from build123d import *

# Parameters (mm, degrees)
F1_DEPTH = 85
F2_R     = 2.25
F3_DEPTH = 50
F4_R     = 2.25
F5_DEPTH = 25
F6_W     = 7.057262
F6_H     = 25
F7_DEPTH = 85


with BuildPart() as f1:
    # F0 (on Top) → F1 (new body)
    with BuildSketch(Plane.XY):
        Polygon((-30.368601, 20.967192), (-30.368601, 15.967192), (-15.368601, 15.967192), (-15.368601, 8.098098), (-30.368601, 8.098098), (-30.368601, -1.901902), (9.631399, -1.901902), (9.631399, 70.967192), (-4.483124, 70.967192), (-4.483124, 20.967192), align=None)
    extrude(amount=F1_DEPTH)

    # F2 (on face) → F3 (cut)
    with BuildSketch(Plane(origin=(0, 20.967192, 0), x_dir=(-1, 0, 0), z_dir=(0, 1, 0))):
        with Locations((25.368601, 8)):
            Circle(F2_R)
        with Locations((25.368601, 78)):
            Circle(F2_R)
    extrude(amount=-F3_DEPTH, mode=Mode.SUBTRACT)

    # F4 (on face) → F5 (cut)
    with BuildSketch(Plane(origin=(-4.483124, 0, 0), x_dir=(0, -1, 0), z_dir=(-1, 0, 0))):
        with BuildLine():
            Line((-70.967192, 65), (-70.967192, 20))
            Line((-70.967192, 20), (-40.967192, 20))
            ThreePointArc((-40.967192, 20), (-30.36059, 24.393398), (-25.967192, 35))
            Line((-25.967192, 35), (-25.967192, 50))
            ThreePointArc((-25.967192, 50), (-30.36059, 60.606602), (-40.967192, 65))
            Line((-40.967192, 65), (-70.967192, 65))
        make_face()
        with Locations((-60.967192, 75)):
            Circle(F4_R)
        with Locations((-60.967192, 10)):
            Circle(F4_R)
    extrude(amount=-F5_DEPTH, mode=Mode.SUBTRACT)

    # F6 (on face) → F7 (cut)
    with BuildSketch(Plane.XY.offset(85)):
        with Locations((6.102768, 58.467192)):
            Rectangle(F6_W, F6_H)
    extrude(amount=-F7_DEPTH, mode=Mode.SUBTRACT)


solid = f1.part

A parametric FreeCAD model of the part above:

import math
import FreeCAD as App
import Part
import Sketcher
from FreeCAD import Vector
Q = App.Units.Quantity

doc = App.newDocument("Part")
body = doc.addObject("PartDesign::Body", "Body")

sketch1 = body.newObject("Sketcher::SketchObject", "Sketch")
sketch1.AttachmentSupport = (doc.getObject("XY_Plane"), [""])
sketch1.MapMode = "FlatFace"
sketch1.addGeometry([
    Part.LineSegment(Vector(-30.368601, 20.967192, 0), Vector(-30.368601, 15.967192, 0)),
    Part.LineSegment(Vector(-30.368601, 15.967192, 0), Vector(-15.368601, 15.967192, 0)),
    Part.LineSegment(Vector(-15.368601, 15.967192, 0), Vector(-15.368601, 8.098098, 0)),
    Part.LineSegment(Vector(-15.368601, 8.098098, 0), Vector(-30.368601, 8.098098, 0)),
    Part.LineSegment(Vector(-30.368601, 8.098098, 0), Vector(-30.368601, -1.901902, 0)),
    Part.LineSegment(Vector(-30.368601, -1.901902, 0), Vector(9.631399, -1.901902, 0)),
    Part.LineSegment(Vector(9.631399, -1.901902, 0), Vector(9.631399, 70.967192, 0)),
    Part.LineSegment(Vector(9.631399, 70.967192, 0), Vector(-4.483124, 70.967192, 0)),
    Part.LineSegment(Vector(-4.483124, 70.967192, 0), Vector(-4.483124, 20.967192, 0)),
    Part.LineSegment(Vector(-4.483124, 20.967192, 0), Vector(-30.368601, 20.967192, 0)),
], False)
sketch1.addConstraint([
    Sketcher.Constraint("Coincident", 0, 2, 1, 1),
    Sketcher.Constraint("Coincident", 1, 2, 2, 1),
    Sketcher.Constraint("Coincident", 2, 2, 3, 1),
    Sketcher.Constraint("Coincident", 3, 2, 4, 1),
    Sketcher.Constraint("Coincident", 4, 2, 5, 1),
    Sketcher.Constraint("Coincident", 5, 2, 6, 1),
    Sketcher.Constraint("Coincident", 6, 2, 7, 1),
    Sketcher.Constraint("Coincident", 7, 2, 8, 1),
    Sketcher.Constraint("Coincident", 8, 2, 9, 1),
    Sketcher.Constraint("Coincident", 9, 2, 0, 1),
    Sketcher.Constraint("Vertical", 0),
    Sketcher.Constraint("Horizontal", 1),
    Sketcher.Constraint("Vertical", 2),
    Sketcher.Constraint("Horizontal", 3),
    Sketcher.Constraint("Vertical", 4),
    Sketcher.Constraint("Horizontal", 5),
    Sketcher.Constraint("Vertical", 6),
    Sketcher.Constraint("Horizontal", 7),
    Sketcher.Constraint("Vertical", 8),
    Sketcher.Constraint("Horizontal", 9),
    Sketcher.Constraint("Vertical", 0, 2, 3, 2),
    Sketcher.Constraint("DistanceX", 1, 1, 1, 2, Q("15 mm")),
    Sketcher.Constraint("DistanceX", 5, 1, 5, 2, Q("40 mm")),
    Sketcher.Constraint("DistanceY", 0, 2, 0, 1, Q("5 mm")),
    Sketcher.Constraint("DistanceY", 4, 2, 4, 1, Q("10 mm")),
    Sketcher.Constraint("DistanceY", 8, 2, 8, 1, Q("50 mm")),
    Sketcher.Constraint("DistanceX", 0, 2, -1, 1, Q("30.368601 mm")),
    Sketcher.Constraint("DistanceX", 7, 2, 7, 1, Q("14.114523 mm")),
    Sketcher.Constraint("DistanceY", 2, 2, 2, 1, Q("7.869094 mm")),
    Sketcher.Constraint("DistanceY", -1, 1, 6, 2, Q("70.967192 mm")),
])
pad1 = body.newObject("PartDesign::Pad", "Pad")
pad1.Profile = sketch1
pad1.Length = 85

sketch2 = body.newObject("Sketcher::SketchObject", "Sketch001")
sketch2.AttachmentSupport = (doc.getObject("XZ_Plane"), [""])
sketch2.MapMode = "FlatFace"
sketch2.AttachmentOffset = App.Placement(Vector(0, 0, -20.967192), App.Rotation())
sketch2.addGeometry([
    Part.Circle(Vector(-25.368601, 8, 0), Vector(0, 0, 1), 2.25),
    Part.Circle(Vector(-25.368601, 78, 0), Vector(0, 0, 1), 2.25),
], False)
sketch2.addConstraint([
    Sketcher.Constraint("Equal", 0, 1),
    Sketcher.Constraint("Vertical", 0, 3, 1, 3),
    Sketcher.Constraint("Diameter", 0, Q("4.5 mm")),
    Sketcher.Constraint("DistanceY", -1, 1, 0, 3, Q("8 mm")),
    Sketcher.Constraint("DistanceY", -1, 1, 1, 3, Q("78 mm")),
    Sketcher.Constraint("DistanceX", 0, 3, -1, 1, Q("25.368601 mm")),
])
pocket1 = body.newObject("PartDesign::Pocket", "Pocket")
pocket1.Profile = sketch2
pocket1.Length = 50
pocket1.Reversed = True

sketch3 = body.newObject("Sketcher::SketchObject", "Sketch002")
sketch3.AttachmentSupport = (doc.getObject("YZ_Plane"), [""])
sketch3.MapMode = "FlatFace"
sketch3.AttachmentOffset = App.Placement(Vector(0, 0, -4.483124), App.Rotation())
sketch3.addGeometry([
    Part.LineSegment(Vector(70.967192, 65, 0), Vector(70.967192, 20, 0)),
    Part.LineSegment(Vector(70.967192, 20, 0), Vector(40.967192, 20, 0)),
    Part.ArcOfCircle(Part.Circle(Vector(40.967191, 34.999999, 0), Vector(0, 0, 1), 14.999999), math.radians(179.999996), math.radians(270.000004)),
    Part.LineSegment(Vector(25.967192, 35, 0), Vector(25.967192, 50, 0)),
    Part.ArcOfCircle(Part.Circle(Vector(40.967191, 50.000001, 0), Vector(0, 0, 1), 14.999999), math.radians(89.999996), math.radians(180.000004)),
    Part.LineSegment(Vector(40.967192, 65, 0), Vector(70.967192, 65, 0)),
    Part.Circle(Vector(60.967192, 75, 0), Vector(0, 0, 1), 2.25),
    Part.Circle(Vector(60.967192, 10, 0), Vector(0, 0, 1), 2.25),
], False)
sketch3.addConstraint([
    Sketcher.Constraint("Coincident", 0, 2, 1, 1),
    Sketcher.Constraint("Tangent", 1, 2, 2, 2),
    Sketcher.Constraint("Tangent", 2, 1, 3, 1),
    Sketcher.Constraint("Tangent", 3, 2, 4, 2),
    Sketcher.Constraint("Tangent", 4, 1, 5, 1),
    Sketcher.Constraint("Coincident", 5, 2, 0, 1),
    Sketcher.Constraint("Vertical", 0),
    Sketcher.Constraint("Horizontal", 1),
    Sketcher.Constraint("Vertical", 3),
    Sketcher.Constraint("Horizontal", 5),
    Sketcher.Constraint("Equal", 2, 4),
    Sketcher.Constraint("Equal", 6, 7),
    Sketcher.Constraint("Vertical", 6, 3, 7, 3),
    Sketcher.Constraint("Radius", 2, Q("14.999999 mm")),
    Sketcher.Constraint("Diameter", 6, Q("4.5 mm")),
    Sketcher.Constraint("DistanceX", 1, 2, 1, 1, Q("30 mm")),
    Sketcher.Constraint("DistanceY", 0, 2, 0, 1, Q("45 mm")),
    Sketcher.Constraint("DistanceY", -1, 1, 2, 3, Q("34.999999 mm")),
    Sketcher.Constraint("DistanceY", -1, 1, 6, 3, Q("75 mm")),
    Sketcher.Constraint("DistanceY", -1, 1, 7, 3, Q("10 mm")),
    Sketcher.Constraint("DistanceX", 4, 3, 6, 3, Q("20.000001 mm")),
    Sketcher.Constraint("DistanceX", -1, 1, 2, 3, Q("40.967191 mm")),
])
pocket2 = body.newObject("PartDesign::Pocket", "Pocket001")
pocket2.Profile = sketch3
pocket2.Length = 25
pocket2.Reversed = True

sketch4 = body.newObject("Sketcher::SketchObject", "Sketch003")
sketch4.AttachmentSupport = (doc.getObject("XY_Plane"), [""])
sketch4.MapMode = "FlatFace"
sketch4.AttachmentOffset = App.Placement(Vector(0, 0, 85), App.Rotation())
sketch4.addGeometry([
    Part.LineSegment(Vector(2.574137, 70.967192, 0), Vector(2.574137, 45.967192, 0)),
    Part.LineSegment(Vector(2.574137, 45.967192, 0), Vector(9.631399, 45.967192, 0)),
    Part.LineSegment(Vector(9.631399, 45.967192, 0), Vector(9.631399, 70.967192, 0)),
    Part.LineSegment(Vector(9.631399, 70.967192, 0), Vector(2.574137, 70.967192, 0)),
], False)
sketch4.addConstraint([
    Sketcher.Constraint("Coincident", 0, 2, 1, 1),
    Sketcher.Constraint("Coincident", 1, 2, 2, 1),
    Sketcher.Constraint("Coincident", 2, 2, 3, 1),
    Sketcher.Constraint("Coincident", 3, 2, 0, 1),
    Sketcher.Constraint("Vertical", 0),
    Sketcher.Constraint("Horizontal", 1),
    Sketcher.Constraint("Vertical", 2),
    Sketcher.Constraint("Horizontal", 3),
    Sketcher.Constraint("DistanceY", 0, 2, 0, 1, Q("25 mm")),
    Sketcher.Constraint("DistanceX", 1, 1, 1, 2, Q("7.057262 mm")),
    Sketcher.Constraint("DistanceX", -1, 1, 1, 2, Q("9.631399 mm")),
    Sketcher.Constraint("DistanceY", -1, 1, 0, 2, Q("45.967192 mm")),
])
pocket3 = body.newObject("PartDesign::Pocket", "Pocket002")
pocket3.Profile = sketch4
pocket3.Length = 85

doc.recompute()
